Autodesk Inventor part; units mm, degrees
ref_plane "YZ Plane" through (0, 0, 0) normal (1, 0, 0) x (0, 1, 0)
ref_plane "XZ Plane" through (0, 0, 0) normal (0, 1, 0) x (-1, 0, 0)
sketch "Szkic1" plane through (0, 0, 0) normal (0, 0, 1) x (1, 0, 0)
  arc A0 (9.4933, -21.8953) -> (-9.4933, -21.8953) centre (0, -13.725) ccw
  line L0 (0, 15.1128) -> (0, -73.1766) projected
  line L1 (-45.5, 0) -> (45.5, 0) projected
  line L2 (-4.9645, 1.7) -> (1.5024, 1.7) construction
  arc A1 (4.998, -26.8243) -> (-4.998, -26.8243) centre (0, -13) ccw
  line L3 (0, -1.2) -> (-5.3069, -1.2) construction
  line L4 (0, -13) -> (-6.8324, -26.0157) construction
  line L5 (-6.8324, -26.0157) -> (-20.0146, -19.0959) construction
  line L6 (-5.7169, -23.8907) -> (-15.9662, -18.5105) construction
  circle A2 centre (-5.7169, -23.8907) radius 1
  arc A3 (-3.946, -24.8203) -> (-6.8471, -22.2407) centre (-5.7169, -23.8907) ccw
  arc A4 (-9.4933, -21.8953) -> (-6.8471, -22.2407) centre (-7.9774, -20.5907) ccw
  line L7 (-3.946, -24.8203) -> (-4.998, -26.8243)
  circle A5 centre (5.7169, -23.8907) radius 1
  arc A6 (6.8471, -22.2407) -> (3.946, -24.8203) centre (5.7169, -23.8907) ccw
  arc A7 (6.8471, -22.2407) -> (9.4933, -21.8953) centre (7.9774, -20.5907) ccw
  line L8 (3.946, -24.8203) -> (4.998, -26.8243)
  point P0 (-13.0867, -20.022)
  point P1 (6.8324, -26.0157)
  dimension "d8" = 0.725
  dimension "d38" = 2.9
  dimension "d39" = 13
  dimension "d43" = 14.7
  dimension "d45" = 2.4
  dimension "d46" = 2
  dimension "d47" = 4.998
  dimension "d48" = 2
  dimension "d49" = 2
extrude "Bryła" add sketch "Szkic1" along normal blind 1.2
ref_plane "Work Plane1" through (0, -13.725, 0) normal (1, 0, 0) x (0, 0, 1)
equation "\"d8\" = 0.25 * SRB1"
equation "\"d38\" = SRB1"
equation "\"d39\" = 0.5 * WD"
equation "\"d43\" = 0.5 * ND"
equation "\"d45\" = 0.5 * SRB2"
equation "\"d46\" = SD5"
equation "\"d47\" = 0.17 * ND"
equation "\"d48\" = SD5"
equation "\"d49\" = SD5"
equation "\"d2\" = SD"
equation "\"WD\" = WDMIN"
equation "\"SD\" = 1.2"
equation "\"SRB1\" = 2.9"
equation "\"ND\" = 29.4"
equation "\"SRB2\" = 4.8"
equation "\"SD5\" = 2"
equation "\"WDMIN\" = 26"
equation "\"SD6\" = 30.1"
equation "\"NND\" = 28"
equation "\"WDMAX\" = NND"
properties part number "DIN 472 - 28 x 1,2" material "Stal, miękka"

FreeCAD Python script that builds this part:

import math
import FreeCAD as App
import Part
import Sketcher

V = App.Vector

doc = App.newDocument("Part")
params = doc.addObject("Spreadsheet::Sheet", "Params")
for row, (alias, value) in enumerate([
    ("sketch1_diameter", "2 mm"),
    ("sketch1_radius", "2 mm"),
    ("sketch1_radius2", "14.7 mm"),
    ("pad1_length", "1.2 mm"),
], start=1):
    params.set(f"A{row}", alias)
    params.set(f"B{row}", "=" + value)
    params.setAlias(f"B{row}", alias)

body = doc.addObject("PartDesign::Body", "Body")

sketch1 = doc.addObject("Sketcher::SketchObject", "Sketch")
body.addObject(sketch1)
sketch1.AttachmentSupport = (doc.XY_Plane, [""])
sketch1.MapMode = "FlatFace"
sketch1.addGeometry([
    Part.ArcOfCircle(Part.Circle(V(8, -20.6, 0), V(0, 0, 1), 2), math.radians(-124), math.radians(-41)),
    Part.ArcOfCircle(Part.Circle(V(5.7, -23.9, 0), V(0, 0, 1), 2), math.radians(56), math.radians(208)),
    Part.LineSegment(V(3.9, -24.8, 0), V(5, -26.8, 0)),
    Part.ArcOfCircle(Part.Circle(V(0, -13, 0), V(0, 0, 1), 14.7), math.radians(-70), math.radians(250)),
    Part.LineSegment(V(-5, -26.8, 0), V(-3.9, -24.8, 0)),
    Part.ArcOfCircle(Part.Circle(V(-5.7, -23.9, 0), V(0, 0, 1), 2), math.radians(-28), math.radians(124)),
    Part.ArcOfCircle(Part.Circle(V(-8, -20.6, 0), V(0, 0, 1), 2), math.radians(-139), math.radians(-56)),
    Part.ArcOfCircle(Part.Circle(V(0, -13.7, 0), V(0, 0, 1), 12.5), math.radians(-41), math.radians(221)),
    Part.Circle(V(5.7, -23.9, 0), V(0, 0, 1), 1),
    Part.Circle(V(-5.7, -23.9, 0), V(0, 0, 1), 1),
], False)
sketch1.addConstraint([
    Sketcher.Constraint("Tangent", 0, 1, 1, 1),
    Sketcher.Constraint("Tangent", 1, 2, 2, 1),
    Sketcher.Constraint("Coincident", 2, 2, 3, 1),
    Sketcher.Constraint("Coincident", 3, 2, 4, 1),
    Sketcher.Constraint("Tangent", 4, 2, 5, 1),
    Sketcher.Constraint("Tangent", 5, 2, 6, 2),
    Sketcher.Constraint("Tangent", 6, 1, 7, 2),
    Sketcher.Constraint("Tangent", 7, 1, 0, 2),
    Sketcher.Constraint("Coincident", 8, 3, 1, 3),
    Sketcher.Constraint("Coincident", 9, 3, 5, 3),
    Sketcher.Constraint("Equal", 0, 1),
    Sketcher.Constraint("Equal", 1, 5),
    Sketcher.Constraint("Equal", 5, 6),
    Sketcher.Constraint("Equal", 8, 9),
    Sketcher.Constraint("Symmetric", 1, 3, 5, 3, -2),
    Sketcher.Constraint("Symmetric", 2, 2, 3, 2, -2),
    Sketcher.Constraint("PointOnObject", 7, 3, -2),
    Sketcher.Constraint("Diameter", 8, 2.0),
    Sketcher.Constraint("Radius", 0, 2.0),
    Sketcher.Constraint("Radius", 3, 14.7),
    Sketcher.Constraint("DistanceY", 3, 3, -1, 1, 13.0),
    Sketcher.Constraint("DistanceX", -1, 1, 2, 2, 4.998),
    Sketcher.Constraint("Radius", 7, 12.525),
    Sketcher.Constraint("DistanceY", 7, 3, 3, 3, 0.725),
    Sketcher.Constraint("DistanceY", 1, 3, 0, 3, 3.3),
    Sketcher.Constraint("DistanceX", -1, 1, 1, 3, 5.717),
])
sketch1.setExpression("Constraints[17]", "Params.sketch1_diameter")
sketch1.setExpression("Constraints[18]", "Params.sketch1_radius")
sketch1.setExpression("Constraints[19]", "Params.sketch1_radius2")
pad1 = doc.addObject("PartDesign::Pad", "Pad")
body.addObject(pad1)
pad1.Profile = sketch1
pad1.setExpression("Length", "Params.pad1_length")

doc.recompute()
